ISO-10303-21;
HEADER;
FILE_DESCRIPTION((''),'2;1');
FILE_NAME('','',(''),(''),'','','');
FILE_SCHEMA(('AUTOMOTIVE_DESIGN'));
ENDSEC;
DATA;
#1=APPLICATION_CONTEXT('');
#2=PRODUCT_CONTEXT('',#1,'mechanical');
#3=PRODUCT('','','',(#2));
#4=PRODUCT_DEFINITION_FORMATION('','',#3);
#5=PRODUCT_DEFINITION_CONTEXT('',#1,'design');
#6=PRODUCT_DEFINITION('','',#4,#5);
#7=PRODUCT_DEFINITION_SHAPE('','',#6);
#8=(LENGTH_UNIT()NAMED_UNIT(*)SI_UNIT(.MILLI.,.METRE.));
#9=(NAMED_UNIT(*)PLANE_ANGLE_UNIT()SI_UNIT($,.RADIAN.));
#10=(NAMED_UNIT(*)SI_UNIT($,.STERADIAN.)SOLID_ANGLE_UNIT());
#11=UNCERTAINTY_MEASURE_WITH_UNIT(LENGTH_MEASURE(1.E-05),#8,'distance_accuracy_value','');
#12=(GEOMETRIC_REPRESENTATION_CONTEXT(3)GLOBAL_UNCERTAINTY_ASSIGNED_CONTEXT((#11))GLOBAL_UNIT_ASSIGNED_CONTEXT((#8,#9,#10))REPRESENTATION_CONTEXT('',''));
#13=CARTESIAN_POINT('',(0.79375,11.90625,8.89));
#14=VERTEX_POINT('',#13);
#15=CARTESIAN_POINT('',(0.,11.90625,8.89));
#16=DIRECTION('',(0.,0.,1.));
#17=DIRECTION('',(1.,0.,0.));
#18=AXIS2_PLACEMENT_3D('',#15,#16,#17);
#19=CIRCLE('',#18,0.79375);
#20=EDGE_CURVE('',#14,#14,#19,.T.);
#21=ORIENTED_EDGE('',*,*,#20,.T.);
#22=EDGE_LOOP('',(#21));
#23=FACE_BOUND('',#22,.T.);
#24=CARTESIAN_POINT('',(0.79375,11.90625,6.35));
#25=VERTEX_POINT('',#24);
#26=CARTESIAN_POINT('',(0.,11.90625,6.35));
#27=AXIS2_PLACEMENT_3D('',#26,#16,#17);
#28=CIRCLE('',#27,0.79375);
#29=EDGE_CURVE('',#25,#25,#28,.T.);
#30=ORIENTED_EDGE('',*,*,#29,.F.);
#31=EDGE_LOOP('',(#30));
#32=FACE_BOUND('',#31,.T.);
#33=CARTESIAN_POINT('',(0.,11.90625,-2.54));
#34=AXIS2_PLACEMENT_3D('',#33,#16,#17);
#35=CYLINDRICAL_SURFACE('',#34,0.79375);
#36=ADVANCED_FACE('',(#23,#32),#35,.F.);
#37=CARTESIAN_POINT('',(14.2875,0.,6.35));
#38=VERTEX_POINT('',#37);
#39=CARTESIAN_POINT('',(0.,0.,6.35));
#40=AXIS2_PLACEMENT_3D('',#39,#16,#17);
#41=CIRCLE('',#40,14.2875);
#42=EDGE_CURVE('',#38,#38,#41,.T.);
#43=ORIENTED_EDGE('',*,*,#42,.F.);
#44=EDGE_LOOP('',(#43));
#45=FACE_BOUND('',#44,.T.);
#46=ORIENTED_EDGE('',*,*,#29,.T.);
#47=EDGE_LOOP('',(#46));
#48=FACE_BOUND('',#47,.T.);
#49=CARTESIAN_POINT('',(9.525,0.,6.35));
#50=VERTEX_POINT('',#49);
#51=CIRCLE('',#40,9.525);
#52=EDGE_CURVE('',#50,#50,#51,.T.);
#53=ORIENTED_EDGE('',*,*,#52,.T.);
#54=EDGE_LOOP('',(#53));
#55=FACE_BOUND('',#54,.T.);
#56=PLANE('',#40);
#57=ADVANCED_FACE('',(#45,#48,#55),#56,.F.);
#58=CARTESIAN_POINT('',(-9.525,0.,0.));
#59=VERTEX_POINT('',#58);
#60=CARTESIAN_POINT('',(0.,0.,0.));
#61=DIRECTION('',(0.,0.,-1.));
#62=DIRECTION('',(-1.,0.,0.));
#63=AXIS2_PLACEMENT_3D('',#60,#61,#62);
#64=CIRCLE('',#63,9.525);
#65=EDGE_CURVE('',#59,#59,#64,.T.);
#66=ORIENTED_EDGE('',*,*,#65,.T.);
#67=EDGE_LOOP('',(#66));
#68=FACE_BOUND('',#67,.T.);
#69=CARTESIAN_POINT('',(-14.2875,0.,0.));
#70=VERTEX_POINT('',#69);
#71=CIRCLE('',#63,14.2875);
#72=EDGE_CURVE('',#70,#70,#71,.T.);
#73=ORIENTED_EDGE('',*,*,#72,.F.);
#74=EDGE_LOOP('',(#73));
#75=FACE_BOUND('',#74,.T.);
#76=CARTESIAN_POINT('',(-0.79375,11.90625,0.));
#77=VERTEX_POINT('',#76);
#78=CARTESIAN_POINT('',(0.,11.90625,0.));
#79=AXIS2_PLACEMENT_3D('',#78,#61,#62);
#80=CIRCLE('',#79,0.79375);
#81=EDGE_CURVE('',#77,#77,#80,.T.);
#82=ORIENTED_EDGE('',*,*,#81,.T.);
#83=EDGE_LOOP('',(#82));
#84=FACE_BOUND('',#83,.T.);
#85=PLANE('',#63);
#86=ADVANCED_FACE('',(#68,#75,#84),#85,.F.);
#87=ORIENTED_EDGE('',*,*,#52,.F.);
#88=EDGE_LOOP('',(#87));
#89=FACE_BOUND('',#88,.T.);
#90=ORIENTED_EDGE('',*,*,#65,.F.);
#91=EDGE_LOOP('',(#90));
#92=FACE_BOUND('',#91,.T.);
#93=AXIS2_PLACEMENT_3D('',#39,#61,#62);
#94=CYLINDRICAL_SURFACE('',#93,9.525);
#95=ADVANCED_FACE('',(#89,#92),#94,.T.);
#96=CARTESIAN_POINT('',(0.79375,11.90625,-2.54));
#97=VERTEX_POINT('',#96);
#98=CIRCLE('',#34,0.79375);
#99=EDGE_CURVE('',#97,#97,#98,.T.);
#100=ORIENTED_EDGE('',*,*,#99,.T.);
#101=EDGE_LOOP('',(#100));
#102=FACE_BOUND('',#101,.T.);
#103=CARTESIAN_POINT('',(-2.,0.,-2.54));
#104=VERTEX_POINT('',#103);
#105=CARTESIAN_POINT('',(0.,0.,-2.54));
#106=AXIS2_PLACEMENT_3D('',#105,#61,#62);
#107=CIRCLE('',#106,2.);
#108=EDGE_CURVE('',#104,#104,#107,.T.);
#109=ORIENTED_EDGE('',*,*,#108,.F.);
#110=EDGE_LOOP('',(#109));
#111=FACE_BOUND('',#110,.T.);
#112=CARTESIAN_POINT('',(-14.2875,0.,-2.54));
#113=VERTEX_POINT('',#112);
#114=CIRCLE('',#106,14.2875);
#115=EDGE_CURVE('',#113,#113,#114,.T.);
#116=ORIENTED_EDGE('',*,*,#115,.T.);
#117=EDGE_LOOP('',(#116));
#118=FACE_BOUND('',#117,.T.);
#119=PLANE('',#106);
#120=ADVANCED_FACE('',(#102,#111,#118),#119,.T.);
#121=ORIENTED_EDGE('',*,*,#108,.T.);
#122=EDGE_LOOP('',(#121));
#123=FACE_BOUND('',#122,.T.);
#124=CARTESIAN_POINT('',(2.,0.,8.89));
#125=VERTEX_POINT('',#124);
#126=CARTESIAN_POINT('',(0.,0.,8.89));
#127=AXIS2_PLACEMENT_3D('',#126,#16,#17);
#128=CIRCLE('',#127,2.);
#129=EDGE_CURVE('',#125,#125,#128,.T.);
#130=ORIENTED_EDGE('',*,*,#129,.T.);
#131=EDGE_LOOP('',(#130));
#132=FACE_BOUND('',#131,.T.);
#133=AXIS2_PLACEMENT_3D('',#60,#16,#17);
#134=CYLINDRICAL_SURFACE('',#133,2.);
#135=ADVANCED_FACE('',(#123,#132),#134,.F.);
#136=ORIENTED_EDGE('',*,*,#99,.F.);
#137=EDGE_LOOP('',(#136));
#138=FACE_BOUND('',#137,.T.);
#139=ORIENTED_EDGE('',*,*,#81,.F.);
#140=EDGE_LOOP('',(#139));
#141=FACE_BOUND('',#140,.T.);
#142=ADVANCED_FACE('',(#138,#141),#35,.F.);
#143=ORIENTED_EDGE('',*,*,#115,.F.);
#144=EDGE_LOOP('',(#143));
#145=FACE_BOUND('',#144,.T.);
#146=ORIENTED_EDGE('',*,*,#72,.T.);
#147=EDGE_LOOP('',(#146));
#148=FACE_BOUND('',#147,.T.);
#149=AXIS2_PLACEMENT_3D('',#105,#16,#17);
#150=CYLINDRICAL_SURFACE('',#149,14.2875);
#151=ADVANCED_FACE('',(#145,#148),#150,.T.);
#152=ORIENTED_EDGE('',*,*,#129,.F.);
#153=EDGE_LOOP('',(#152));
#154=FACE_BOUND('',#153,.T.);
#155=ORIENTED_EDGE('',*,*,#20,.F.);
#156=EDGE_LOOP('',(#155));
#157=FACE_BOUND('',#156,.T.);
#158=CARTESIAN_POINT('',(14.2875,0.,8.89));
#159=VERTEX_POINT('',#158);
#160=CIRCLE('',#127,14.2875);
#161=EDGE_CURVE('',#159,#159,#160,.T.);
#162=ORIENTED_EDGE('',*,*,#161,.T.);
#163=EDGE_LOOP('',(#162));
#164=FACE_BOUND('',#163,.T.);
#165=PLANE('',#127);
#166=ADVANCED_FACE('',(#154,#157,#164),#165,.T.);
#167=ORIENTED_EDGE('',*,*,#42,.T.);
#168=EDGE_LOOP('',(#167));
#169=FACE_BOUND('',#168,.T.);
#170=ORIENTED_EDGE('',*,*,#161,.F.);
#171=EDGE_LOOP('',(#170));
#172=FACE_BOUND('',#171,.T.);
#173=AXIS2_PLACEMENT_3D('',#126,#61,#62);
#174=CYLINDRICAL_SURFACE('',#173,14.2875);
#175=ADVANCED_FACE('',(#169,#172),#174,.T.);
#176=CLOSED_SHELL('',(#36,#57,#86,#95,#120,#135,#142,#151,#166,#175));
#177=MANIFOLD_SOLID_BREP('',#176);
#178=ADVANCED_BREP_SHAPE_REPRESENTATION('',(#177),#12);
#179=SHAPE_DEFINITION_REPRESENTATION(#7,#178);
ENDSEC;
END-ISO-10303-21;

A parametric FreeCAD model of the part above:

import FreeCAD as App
import Part
import Sketcher
Q = App.Units.Quantity

doc = App.newDocument("Part")
body = doc.addObject("PartDesign::Body", "Body")

# Sketch on XY plane
sketch1 = body.newObject("Sketcher::SketchObject", "Sketch")
sketch1.AttachmentSupport = (doc.getObject("XY_Plane"), [""])
sketch1.MapMode = "FlatFace"
sketch1.addGeometry(Part.Circle(App.Vector(0, 0, 0), App.Vector(0, 0, 1), 10), False)
sketch1.addConstraint([
    Sketcher.Constraint("Coincident", 0, 3, -1, 1),
    Sketcher.Constraint("Diameter", 0, Q("0.75 in")),
])
pad1 = body.newObject("PartDesign::Pad", "Pad")
pad1.Profile = sketch1
pad1.Length = Q("0.25 in")

# Sketch on XY plane
sketch2 = body.newObject("Sketcher::SketchObject", "Sketch001")
sketch2.AttachmentSupport = (doc.getObject("XY_Plane"), [""])
sketch2.MapMode = "FlatFace"
sketch2.AttachmentOffset = App.Placement(App.Vector(0, 0, 0.25 * 25.4), App.Rotation())
sketch2.addGeometry(Part.Circle(App.Vector(0, 0, 0), App.Vector(0, 0, 1), 2), False)
sketch2.addConstraint([
    Sketcher.Constraint("Coincident", 0, 3, -1, 1),
    Sketcher.Constraint("Diameter", 0, Q("4 mm")),
])
pocket1 = body.newObject("PartDesign::Pocket", "Pocket")
pocket1.Profile = sketch2
pocket1.Type = "ThroughAll"

# Sketch on XY plane
sketch3 = body.newObject("Sketcher::SketchObject", "Sketch002")
sketch3.AttachmentSupport = (doc.getObject("XY_Plane"), [""])
sketch3.MapMode = "FlatFace"
sketch3.AttachmentOffset = App.Placement(App.Vector(0, 0, 0.25 * 25.4), App.Rotation())
sketch3.addGeometry([
    Part.Circle(App.Vector(0, 0, 0), App.Vector(0, 0, 1), 14.3),
    Part.Circle(App.Vector(0, 0, 0), App.Vector(0, 0, 1), 2),
], False)
sketch3.addConstraint([
    Sketcher.Constraint("Coincident", 0, 3, -1, 1),
    Sketcher.Constraint("Coincident", 1, 3, -1, 1),
    Sketcher.Constraint("Diameter", 0, Q("1.125 in")),
    Sketcher.Constraint("Diameter", 1, Q("4 mm")),
])
pad2 = body.newObject("PartDesign::Pad", "Pad001")
pad2.Profile = sketch3
pad2.Length = Q("0.1 in")

# Sketch on XY plane
sketch4 = body.newObject("Sketcher::SketchObject", "Sketch003")
sketch4.AttachmentSupport = (doc.getObject("XY_Plane"), [""])
sketch4.MapMode = "FlatFace"
sketch4.addGeometry([
    Part.Circle(App.Vector(0, 0, 0), App.Vector(0, 0, 1), 14.3),
    Part.Circle(App.Vector(0, 0, 0), App.Vector(0, 0, 1), 2),
], False)
sketch4.addConstraint([
    Sketcher.Constraint("Coincident", 0, 3, -1, 1),
    Sketcher.Constraint("Coincident", 1, 3, -1, 1),
    Sketcher.Constraint("Diameter", 0, Q("1.125 in")),
    Sketcher.Constraint("Diameter", 1, Q("4 mm")),
])
pad3 = body.newObject("PartDesign::Pad", "Pad002")
pad3.Profile = sketch4
pad3.Length = Q("0.1 in")
pad3.Reversed = True

# Sketch on XY plane
sketch5 = body.newObject("Sketcher::SketchObject", "Sketch004")
sketch5.AttachmentSupport = (doc.getObject("XY_Plane"), [""])
sketch5.MapMode = "FlatFace"
sketch5.AttachmentOffset = App.Placement(App.Vector(0, 0, 0.35 * 25.4), App.Rotation())
sketch5.addGeometry(Part.Circle(App.Vector(0, 11.9, 0), App.Vector(0, 0, 1), 0.8), False)
sketch5.addConstraint([
    Sketcher.Constraint("PointOnObject", 0, 3, -2),
    Sketcher.Constraint("Diameter", 0, Q("0.0625 in")),
    Sketcher.Constraint("DistanceY", -1, 1, 0, 3, Q("0.46875 in")),
])
pocket2 = body.newObject("PartDesign::Pocket", "Pocket001")
pocket2.Profile = sketch5
pocket2.Type = "ThroughAll"

doc.recompute()
